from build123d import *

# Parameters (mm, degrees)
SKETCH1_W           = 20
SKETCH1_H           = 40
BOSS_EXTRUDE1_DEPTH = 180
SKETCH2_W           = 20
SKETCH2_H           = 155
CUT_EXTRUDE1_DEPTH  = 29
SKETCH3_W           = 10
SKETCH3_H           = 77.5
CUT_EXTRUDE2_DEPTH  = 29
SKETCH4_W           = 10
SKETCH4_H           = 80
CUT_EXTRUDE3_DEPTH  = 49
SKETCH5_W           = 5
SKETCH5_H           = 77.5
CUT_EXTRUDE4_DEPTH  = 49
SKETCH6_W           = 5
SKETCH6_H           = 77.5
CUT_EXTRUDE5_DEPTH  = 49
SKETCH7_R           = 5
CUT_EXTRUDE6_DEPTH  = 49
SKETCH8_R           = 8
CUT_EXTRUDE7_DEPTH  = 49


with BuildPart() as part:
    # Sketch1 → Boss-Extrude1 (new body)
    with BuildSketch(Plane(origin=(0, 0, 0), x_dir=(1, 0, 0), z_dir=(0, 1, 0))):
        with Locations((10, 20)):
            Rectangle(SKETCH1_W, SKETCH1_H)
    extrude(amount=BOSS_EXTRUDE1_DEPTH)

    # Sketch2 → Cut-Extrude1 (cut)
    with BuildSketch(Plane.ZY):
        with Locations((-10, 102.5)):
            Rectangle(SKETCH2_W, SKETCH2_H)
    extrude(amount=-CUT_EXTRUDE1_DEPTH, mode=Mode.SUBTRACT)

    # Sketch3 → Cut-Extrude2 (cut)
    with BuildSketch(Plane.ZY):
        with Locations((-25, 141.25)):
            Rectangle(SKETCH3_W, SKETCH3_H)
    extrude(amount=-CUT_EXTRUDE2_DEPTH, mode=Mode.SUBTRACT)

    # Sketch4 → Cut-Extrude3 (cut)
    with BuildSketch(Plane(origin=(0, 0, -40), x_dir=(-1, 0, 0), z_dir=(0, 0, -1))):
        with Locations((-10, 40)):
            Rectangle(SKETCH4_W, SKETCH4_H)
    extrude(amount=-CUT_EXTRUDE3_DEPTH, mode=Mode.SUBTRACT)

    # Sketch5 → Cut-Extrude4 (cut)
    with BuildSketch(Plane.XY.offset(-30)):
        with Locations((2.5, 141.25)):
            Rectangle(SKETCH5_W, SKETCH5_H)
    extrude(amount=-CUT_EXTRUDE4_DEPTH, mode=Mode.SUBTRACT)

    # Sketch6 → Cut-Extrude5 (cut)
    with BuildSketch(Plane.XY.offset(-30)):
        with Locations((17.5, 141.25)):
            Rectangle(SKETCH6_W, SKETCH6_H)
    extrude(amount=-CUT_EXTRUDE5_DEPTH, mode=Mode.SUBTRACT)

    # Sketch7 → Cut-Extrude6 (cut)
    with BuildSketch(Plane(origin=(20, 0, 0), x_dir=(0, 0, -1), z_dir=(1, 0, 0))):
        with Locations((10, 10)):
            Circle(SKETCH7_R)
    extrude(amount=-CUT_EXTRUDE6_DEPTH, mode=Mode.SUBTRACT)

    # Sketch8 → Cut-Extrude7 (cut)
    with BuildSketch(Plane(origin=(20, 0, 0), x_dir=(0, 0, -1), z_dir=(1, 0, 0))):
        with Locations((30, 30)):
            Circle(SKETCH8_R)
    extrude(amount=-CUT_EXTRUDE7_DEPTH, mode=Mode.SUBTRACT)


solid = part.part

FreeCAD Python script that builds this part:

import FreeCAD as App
import Part
import Sketcher

doc = App.newDocument("Part")
body = doc.addObject("PartDesign::Body", "Body")

# Sketch on XZ plane
sketch1 = body.newObject("Sketcher::SketchObject", "Sketch")
sketch1.AttachmentSupport = (doc.getObject("XZ_Plane"), [""])
sketch1.MapMode = "FlatFace"
sketch1.addGeometry([
    Part.LineSegment(App.Vector(0, -40, 0), App.Vector(0, 0, 0)),
    Part.LineSegment(App.Vector(0, 0, 0), App.Vector(20, 0, 0)),
    Part.LineSegment(App.Vector(20, 0, 0), App.Vector(20, -40, 0)),
    Part.LineSegment(App.Vector(20, -40, 0), App.Vector(0, -40, 0)),
], False)
sketch1.addConstraint([
    Sketcher.Constraint("Coincident", 0, 2, 1, 1),
    Sketcher.Constraint("Coincident", 1, 2, 2, 1),
    Sketcher.Constraint("Coincident", 2, 2, 3, 1),
    Sketcher.Constraint("Coincident", 3, 2, 0, 1),
    Sketcher.Constraint("Vertical", 0),
    Sketcher.Constraint("Horizontal", 1),
    Sketcher.Constraint("Vertical", 2),
    Sketcher.Constraint("Horizontal", 3),
    Sketcher.Constraint("Coincident", 0, 2, -1, 1),
    Sketcher.Constraint("DistanceX", 1, 1, 1, 2, 20.0),
    Sketcher.Constraint("DistanceY", 0, 1, 0, 2, 40.0),
])
pad1 = body.newObject("PartDesign::Pad", "Pad")
pad1.Profile = sketch1
pad1.Length = 180
pad1.Reversed = True

# Sketch on YZ plane
sketch2 = body.newObject("Sketcher::SketchObject", "Sketch001")
sketch2.AttachmentSupport = (doc.getObject("YZ_Plane"), [""])
sketch2.MapMode = "FlatFace"
sketch2.addGeometry([
    Part.LineSegment(App.Vector(180, -20, 0), App.Vector(25, -20, 0)),
    Part.LineSegment(App.Vector(25, -20, 0), App.Vector(25, 0, 0)),
    Part.LineSegment(App.Vector(25, 0, 0), App.Vector(180, 0, 0)),
    Part.LineSegment(App.Vector(180, 0, 0), App.Vector(180, -20, 0)),
], False)
sketch2.addConstraint([
    Sketcher.Constraint("Coincident", 0, 2, 1, 1),
    Sketcher.Constraint("Coincident", 1, 2, 2, 1),
    Sketcher.Constraint("Coincident", 2, 2, 3, 1),
    Sketcher.Constraint("Coincident", 3, 2, 0, 1),
    Sketcher.Constraint("Horizontal", 0),
    Sketcher.Constraint("Vertical", 1),
    Sketcher.Constraint("Horizontal", 2),
    Sketcher.Constraint("Vertical", 3),
    Sketcher.Constraint("PointOnObject", 1, 2, -1),
    Sketcher.Constraint("DistanceX", 0, 2, 0, 1, 155.0),
    Sketcher.Constraint("DistanceY", 1, 1, 1, 2, 20.0),
    Sketcher.Constraint("DistanceX", -1, 1, 0, 2, 25.0),
])
pocket1 = body.newObject("PartDesign::Pocket", "Pocket")
pocket1.Profile = sketch2
pocket1.Length = 29
pocket1.Reversed = True

# Sketch on YZ plane
sketch3 = body.newObject("Sketcher::SketchObject", "Sketch002")
sketch3.AttachmentSupport = (doc.getObject("YZ_Plane"), [""])
sketch3.MapMode = "FlatFace"
sketch3.addGeometry([
    Part.LineSegment(App.Vector(180, -30, 0), App.Vector(102, -30, 0)),
    Part.LineSegment(App.Vector(102, -30, 0), App.Vector(102, -20, 0)),
    Part.LineSegment(App.Vector(102, -20, 0), App.Vector(180, -20, 0)),
    Part.LineSegment(App.Vector(180, -20, 0), App.Vector(180, -30, 0)),
], False)
sketch3.addConstraint([
    Sketcher.Constraint("Coincident", 0, 2, 1, 1),
    Sketcher.Constraint("Coincident", 1, 2, 2, 1),
    Sketcher.Constraint("Coincident", 2, 2, 3, 1),
    Sketcher.Constraint("Coincident", 3, 2, 0, 1),
    Sketcher.Constraint("Horizontal", 0),
    Sketcher.Constraint("Vertical", 1),
    Sketcher.Constraint("Horizontal", 2),
    Sketcher.Constraint("Vertical", 3),
    Sketcher.Constraint("DistanceY", 1, 1, 1, 2, 10.0),
    Sketcher.Constraint("DistanceX", 0, 2, 0, 1, 77.5),
    Sketcher.Constraint("DistanceY", 0, 2, -1, 1, 30.0),
    Sketcher.Constraint("DistanceX", -1, 1, 2, 2, 180.0),
])
pocket2 = body.newObject("PartDesign::Pocket", "Pocket001")
pocket2.Profile = sketch3
pocket2.Length = 29
pocket2.Reversed = True

# Sketch on XY plane
sketch4 = body.newObject("Sketcher::SketchObject", "Sketch003")
sketch4.AttachmentSupport = (doc.getObject("XY_Plane"), [""])
sketch4.MapMode = "FlatFace"
sketch4.AttachmentOffset = App.Placement(App.Vector(0, 0, -40), App.Rotation())
sketch4.addGeometry([
    Part.LineSegment(App.Vector(15, 80, 0), App.Vector(15, 0, 0)),
    Part.LineSegment(App.Vector(15, 0, 0), App.Vector(5, 0, 0)),
    Part.LineSegment(App.Vector(5, 0, 0), App.Vector(5, 80, 0)),
    Part.LineSegment(App.Vector(5, 80, 0), App.Vector(15, 80, 0)),
], False)
sketch4.addConstraint([
    Sketcher.Constraint("Coincident", 0, 2, 1, 1),
    Sketcher.Constraint("Coincident", 1, 2, 2, 1),
    Sketcher.Constraint("Coincident", 2, 2, 3, 1),
    Sketcher.Constraint("Coincident", 3, 2, 0, 1),
    Sketcher.Constraint("Vertical", 0),
    Sketcher.Constraint("Horizontal", 1),
    Sketcher.Constraint("Vertical", 2),
    Sketcher.Constraint("Horizontal", 3),
    Sketcher.Constraint("PointOnObject", 0, 2, -1),
    Sketcher.Constraint("DistanceX", 1, 2, 1, 1, 10.0),
    Sketcher.Constraint("DistanceY", 0, 2, 0, 1, 80.0),
    Sketcher.Constraint("DistanceX", -1, 1, 0, 2, 15.0),
])
pocket3 = body.newObject("PartDesign::Pocket", "Pocket002")
pocket3.Profile = sketch4
pocket3.Length = 49
pocket3.Reversed = True

# Sketch on XY plane
sketch5 = body.newObject("Sketcher::SketchObject", "Sketch004")
sketch5.AttachmentSupport = (doc.getObject("XY_Plane"), [""])
sketch5.MapMode = "FlatFace"
sketch5.AttachmentOffset = App.Placement(App.Vector(0, 0, -30), App.Rotation())
sketch5.addGeometry([
    Part.LineSegment(App.Vector(0, 180, 0), App.Vector(0, 102, 0)),
    Part.LineSegment(App.Vector(0, 102, 0), App.Vector(5, 102, 0)),
    Part.LineSegment(App.Vector(5, 102, 0), App.Vector(5, 180, 0)),
    Part.LineSegment(App.Vector(5, 180, 0), App.Vector(0, 180, 0)),
], False)
sketch5.addConstraint([
    Sketcher.Constraint("Coincident", 0, 2, 1, 1),
    Sketcher.Constraint("Coincident", 1, 2, 2, 1),
    Sketcher.Constraint("Coincident", 2, 2, 3, 1),
    Sketcher.Constraint("Coincident", 3, 2, 0, 1),
    Sketcher.Constraint("Vertical", 0),
    Sketcher.Constraint("Horizontal", 1),
    Sketcher.Constraint("Vertical", 2),
    Sketcher.Constraint("Horizontal", 3),
    Sketcher.Constraint("PointOnObject", 0, 2, -2),
    Sketcher.Constraint("DistanceX", 1, 1, 1, 2, 5.0),
    Sketcher.Constraint("DistanceY", 0, 2, 0, 1, 77.5),
    Sketcher.Constraint("DistanceY", -1, 1, 2, 2, 180.0),
])
pocket4 = body.newObject("PartDesign::Pocket", "Pocket003")
pocket4.Profile = sketch5
pocket4.Length = 49

# Sketch on XY plane
sketch6 = body.newObject("Sketcher::SketchObject", "Sketch005")
sketch6.AttachmentSupport = (doc.getObject("XY_Plane"), [""])
sketch6.MapMode = "FlatFace"
sketch6.AttachmentOffset = App.Placement(App.Vector(0, 0, -30), App.Rotation())
sketch6.addGeometry([
    Part.LineSegment(App.Vector(15, 180, 0), App.Vector(15, 102, 0)),
    Part.LineSegment(App.Vector(15, 102, 0), App.Vector(20, 102, 0)),
    Part.LineSegment(App.Vector(20, 102, 0), App.Vector(20, 180, 0)),
    Part.LineSegment(App.Vector(20, 180, 0), App.Vector(15, 180, 0)),
], False)
sketch6.addConstraint([
    Sketcher.Constraint("Coincident", 0, 2, 1, 1),
    Sketcher.Constraint("Coincident", 1, 2, 2, 1),
    Sketcher.Constraint("Coincident", 2, 2, 3, 1),
    Sketcher.Constraint("Coincident", 3, 2, 0, 1),
    Sketcher.Constraint("Vertical", 0),
    Sketcher.Constraint("Horizontal", 1),
    Sketcher.Constraint("Vertical", 2),
    Sketcher.Constraint("Horizontal", 3),
    Sketcher.Constraint("DistanceX", 1, 1, 1, 2, 5.0),
    Sketcher.Constraint("DistanceY", 0, 2, 0, 1, 77.5),
    Sketcher.Constraint("DistanceX", -1, 1, 0, 2, 15.0),
    Sketcher.Constraint("DistanceY", -1, 1, 2, 2, 180.0),
])
pocket5 = body.newObject("PartDesign::Pocket", "Pocket004")
pocket5.Profile = sketch6
pocket5.Length = 49

# Sketch on YZ plane
sketch7 = body.newObject("Sketcher::SketchObject", "Sketch006")
sketch7.AttachmentSupport = (doc.getObject("YZ_Plane"), [""])
sketch7.MapMode = "FlatFace"
sketch7.AttachmentOffset = App.Placement(App.Vector(0, 0, 20), App.Rotation())
sketch7.addGeometry(Part.Circle(App.Vector(10, -10, 0), App.Vector(0, 0, 1), 5), False)
sketch7.addConstraint([
    Sketcher.Constraint("Diameter", 0, 10.0),
    Sketcher.Constraint("DistanceX", -1, 1, 0, 3, 10.0),
    Sketcher.Constraint("DistanceY", 0, 3, -1, 1, 10.0),
])
pocket6 = body.newObject("PartDesign::Pocket", "Pocket005")
pocket6.Profile = sketch7
pocket6.Length = 49

# Sketch on YZ plane
sketch8 = body.newObject("Sketcher::SketchObject", "Sketch007")
sketch8.AttachmentSupport = (doc.getObject("YZ_Plane"), [""])
sketch8.MapMode = "FlatFace"
sketch8.AttachmentOffset = App.Placement(App.Vector(0, 0, 20), App.Rotation())
sketch8.addGeometry(Part.Circle(App.Vector(30, -30, 0), App.Vector(0, 0, 1), 8), False)
sketch8.addConstraint([
    Sketcher.Constraint("Diameter", 0, 16.0),
    Sketcher.Constraint("DistanceX", -1, 1, 0, 3, 30.0),
    Sketcher.Constraint("DistanceY", 0, 3, -1, 1, 30.0),
])
pocket7 = body.newObject("PartDesign::Pocket", "Pocket006")
pocket7.Profile = sketch8
pocket7.Length = 49

doc.recompute()
